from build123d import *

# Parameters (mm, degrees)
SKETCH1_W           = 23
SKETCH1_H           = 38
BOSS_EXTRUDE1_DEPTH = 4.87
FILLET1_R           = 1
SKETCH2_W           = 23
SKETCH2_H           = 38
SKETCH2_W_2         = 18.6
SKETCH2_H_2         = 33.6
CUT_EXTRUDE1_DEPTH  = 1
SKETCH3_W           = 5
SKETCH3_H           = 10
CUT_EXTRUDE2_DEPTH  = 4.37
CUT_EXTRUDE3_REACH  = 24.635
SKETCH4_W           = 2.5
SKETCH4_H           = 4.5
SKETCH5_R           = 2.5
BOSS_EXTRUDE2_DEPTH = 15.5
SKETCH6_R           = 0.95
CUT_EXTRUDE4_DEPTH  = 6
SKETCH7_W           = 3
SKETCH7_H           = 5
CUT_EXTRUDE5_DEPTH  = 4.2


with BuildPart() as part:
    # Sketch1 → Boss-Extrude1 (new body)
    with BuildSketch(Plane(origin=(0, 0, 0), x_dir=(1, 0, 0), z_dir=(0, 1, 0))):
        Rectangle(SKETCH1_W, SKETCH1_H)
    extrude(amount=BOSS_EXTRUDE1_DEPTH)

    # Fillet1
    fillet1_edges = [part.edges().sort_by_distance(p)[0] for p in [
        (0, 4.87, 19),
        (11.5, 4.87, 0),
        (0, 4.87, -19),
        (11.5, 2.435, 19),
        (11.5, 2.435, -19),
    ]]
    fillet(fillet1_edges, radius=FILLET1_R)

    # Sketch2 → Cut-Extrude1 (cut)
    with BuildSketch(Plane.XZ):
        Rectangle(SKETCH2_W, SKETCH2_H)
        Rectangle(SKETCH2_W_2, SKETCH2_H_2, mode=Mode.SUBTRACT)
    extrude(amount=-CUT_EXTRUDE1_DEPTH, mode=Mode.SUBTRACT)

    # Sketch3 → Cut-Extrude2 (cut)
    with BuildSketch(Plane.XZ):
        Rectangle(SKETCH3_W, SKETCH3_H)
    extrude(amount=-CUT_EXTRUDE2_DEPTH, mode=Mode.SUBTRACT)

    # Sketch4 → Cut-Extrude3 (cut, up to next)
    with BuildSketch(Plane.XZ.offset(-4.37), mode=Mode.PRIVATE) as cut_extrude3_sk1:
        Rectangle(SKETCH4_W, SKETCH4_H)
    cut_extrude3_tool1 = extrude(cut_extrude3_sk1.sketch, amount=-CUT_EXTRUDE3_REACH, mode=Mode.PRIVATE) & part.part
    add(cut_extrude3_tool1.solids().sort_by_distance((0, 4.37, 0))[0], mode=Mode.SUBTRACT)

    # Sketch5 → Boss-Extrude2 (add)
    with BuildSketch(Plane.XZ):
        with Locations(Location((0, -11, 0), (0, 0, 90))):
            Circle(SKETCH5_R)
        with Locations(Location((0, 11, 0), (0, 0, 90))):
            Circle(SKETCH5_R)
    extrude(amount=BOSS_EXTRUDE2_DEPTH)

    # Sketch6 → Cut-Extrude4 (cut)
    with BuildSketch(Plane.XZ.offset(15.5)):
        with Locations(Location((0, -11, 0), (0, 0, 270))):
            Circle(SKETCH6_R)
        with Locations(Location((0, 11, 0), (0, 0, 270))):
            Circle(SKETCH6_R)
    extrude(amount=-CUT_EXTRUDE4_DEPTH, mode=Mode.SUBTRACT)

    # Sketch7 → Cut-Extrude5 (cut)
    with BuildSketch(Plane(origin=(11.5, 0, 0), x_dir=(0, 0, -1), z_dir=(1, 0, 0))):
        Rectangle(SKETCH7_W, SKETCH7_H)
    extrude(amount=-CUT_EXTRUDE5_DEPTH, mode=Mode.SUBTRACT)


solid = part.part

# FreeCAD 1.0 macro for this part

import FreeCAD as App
import Part
import Sketcher


def edges_at(feature, points):
    """Names of the edges that pass closest to the given points."""
    edges = feature.Shape.Edges
    near = lambda p: min(range(len(edges)), key=lambda i: edges[i].distToShape(Part.Vertex(*p))[0])
    return sorted({f"Edge{near(p) + 1}" for p in points})

doc = App.newDocument("Part")
body = doc.addObject("PartDesign::Body", "Body")

sketch1 = body.newObject("Sketcher::SketchObject", "Sketch")
sketch1.AttachmentSupport = (doc.getObject("XZ_Plane"), [""])
sketch1.MapMode = "FlatFace"
sketch1.addGeometry([
    Part.LineSegment(App.Vector(-12, -19, 0), App.Vector(-12, 19, 0)),
    Part.LineSegment(App.Vector(-12, 19, 0), App.Vector(12, 19, 0)),
    Part.LineSegment(App.Vector(12, 19, 0), App.Vector(12, -19, 0)),
    Part.LineSegment(App.Vector(12, -19, 0), App.Vector(-12, -19, 0)),
], False)
sketch1.addConstraint([
    Sketcher.Constraint("Coincident", 0, 2, 1, 1),
    Sketcher.Constraint("Coincident", 1, 2, 2, 1),
    Sketcher.Constraint("Coincident", 2, 2, 3, 1),
    Sketcher.Constraint("Coincident", 3, 2, 0, 1),
    Sketcher.Constraint("Vertical", 0),
    Sketcher.Constraint("Horizontal", 1),
    Sketcher.Constraint("Vertical", 2),
    Sketcher.Constraint("Horizontal", 3),
    Sketcher.Constraint("Symmetric", 0, 2, 2, 2, -1, 1),
    Sketcher.Constraint("DistanceX", 1, 1, 1, 2, 23.0),
    Sketcher.Constraint("DistanceY", 0, 1, 0, 2, 38.0),
])
pad1 = body.newObject("PartDesign::Pad", "Pad")
pad1.Profile = sketch1
pad1.Length = 4.87
pad1.Reversed = True
doc.recompute()

fillet = body.newObject("PartDesign::Fillet", "Fillet")
fillet.Base = (pad1, edges_at(pad1, [
    (0, 4.87, 19),
    (11.5, 4.87, 0),
    (0, 4.87, -19),
    (11.5, 2.435, 19),
    (11.5, 2.435, -19),
]))
fillet.Radius = 1

sketch2 = body.newObject("Sketcher::SketchObject", "Sketch001")
sketch2.AttachmentSupport = (doc.getObject("XZ_Plane"), [""])
sketch2.MapMode = "FlatFace"
sketch2.addGeometry([
    Part.LineSegment(App.Vector(-12, 19, 0), App.Vector(-12, -19, 0)),
    Part.LineSegment(App.Vector(-12, -19, 0), App.Vector(12, -19, 0)),
    Part.LineSegment(App.Vector(12, -19, 0), App.Vector(12, 19, 0)),
    Part.LineSegment(App.Vector(12, 19, 0), App.Vector(-12, 19, 0)),
    Part.LineSegment(App.Vector(9, -17, 0), App.Vector(-9, -17, 0)),
    Part.LineSegment(App.Vector(-9, -17, 0), App.Vector(-9, 17, 0)),
    Part.LineSegment(App.Vector(-9, 17, 0), App.Vector(9, 17, 0)),
    Part.LineSegment(App.Vector(9, 17, 0), App.Vector(9, -17, 0)),
], False)
sketch2.addConstraint([
    Sketcher.Constraint("Coincident", 0, 2, 1, 1),
    Sketcher.Constraint("Coincident", 1, 2, 2, 1),
    Sketcher.Constraint("Coincident", 2, 2, 3, 1),
    Sketcher.Constraint("Coincident", 3, 2, 0, 1),
    Sketcher.Constraint("Coincident", 4, 2, 5, 1),
    Sketcher.Constraint("Coincident", 5, 2, 6, 1),
    Sketcher.Constraint("Coincident", 6, 2, 7, 1),
    Sketcher.Constraint("Coincident", 7, 2, 4, 1),
    Sketcher.Constraint("Vertical", 0),
    Sketcher.Constraint("Horizontal", 1),
    Sketcher.Constraint("Vertical", 2),
    Sketcher.Constraint("Horizontal", 3),
    Sketcher.Constraint("Horizontal", 4),
    Sketcher.Constraint("Vertical", 5),
    Sketcher.Constraint("Horizontal", 6),
    Sketcher.Constraint("Vertical", 7),
    Sketcher.Constraint("Symmetric", 0, 2, 2, 2, -1, 1),
    Sketcher.Constraint("Symmetric", 4, 2, 6, 2, -1, 1),
    Sketcher.Constraint("DistanceX", 1, 1, 1, 2, 23.0),
    Sketcher.Constraint("DistanceY", 0, 2, 0, 1, 38.0),
    Sketcher.Constraint("DistanceX", 4, 2, 4, 1, 18.6),
    Sketcher.Constraint("DistanceY", 5, 1, 5, 2, 33.6),
])
pocket1 = body.newObject("PartDesign::Pocket", "Pocket")
pocket1.Profile = sketch2
pocket1.Length = 1

sketch3 = body.newObject("Sketcher::SketchObject", "Sketch002")
sketch3.AttachmentSupport = (doc.getObject("XZ_Plane"), [""])
sketch3.MapMode = "FlatFace"
sketch3.addGeometry([
    Part.LineSegment(App.Vector(-2, 5, 0), App.Vector(-2, -5, 0)),
    Part.LineSegment(App.Vector(-2, -5, 0), App.Vector(2, -5, 0)),
    Part.LineSegment(App.Vector(2, -5, 0), App.Vector(2, 5, 0)),
    Part.LineSegment(App.Vector(2, 5, 0), App.Vector(-2, 5, 0)),
], False)
sketch3.addConstraint([
    Sketcher.Constraint("Coincident", 0, 2, 1, 1),
    Sketcher.Constraint("Coincident", 1, 2, 2, 1),
    Sketcher.Constraint("Coincident", 2, 2, 3, 1),
    Sketcher.Constraint("Coincident", 3, 2, 0, 1),
    Sketcher.Constraint("Vertical", 0),
    Sketcher.Constraint("Horizontal", 1),
    Sketcher.Constraint("Vertical", 2),
    Sketcher.Constraint("Horizontal", 3),
    Sketcher.Constraint("Symmetric", 0, 2, 2, 2, -1, 1),
    Sketcher.Constraint("DistanceX", 1, 1, 1, 2, 5.0),
    Sketcher.Constraint("DistanceY", 0, 2, 0, 1, 10.0),
])
pocket2 = body.newObject("PartDesign::Pocket", "Pocket001")
pocket2.Profile = sketch3
pocket2.Length = 4.37

sketch4 = body.newObject("Sketcher::SketchObject", "Sketch003")
sketch4.AttachmentSupport = (doc.getObject("XZ_Plane"), [""])
sketch4.MapMode = "FlatFace"
sketch4.AttachmentOffset = App.Placement(App.Vector(0, 0, -4.37), App.Rotation())
sketch4.addGeometry([
    Part.LineSegment(App.Vector(-1.2, 2.2, 0), App.Vector(-1.2, -2.2, 0)),
    Part.LineSegment(App.Vector(-1.2, -2.2, 0), App.Vector(1.2, -2.2, 0)),
    Part.LineSegment(App.Vector(1.2, -2.2, 0), App.Vector(1.2, 2.2, 0)),
    Part.LineSegment(App.Vector(1.2, 2.2, 0), App.Vector(-1.2, 2.2, 0)),
], False)
sketch4.addConstraint([
    Sketcher.Constraint("Coincident", 0, 2, 1, 1),
    Sketcher.Constraint("Coincident", 1, 2, 2, 1),
    Sketcher.Constraint("Coincident", 2, 2, 3, 1),
    Sketcher.Constraint("Coincident", 3, 2, 0, 1),
    Sketcher.Constraint("Vertical", 0),
    Sketcher.Constraint("Horizontal", 1),
    Sketcher.Constraint("Vertical", 2),
    Sketcher.Constraint("Horizontal", 3),
    Sketcher.Constraint("Symmetric", 0, 2, 2, 2, -1, 1),
    Sketcher.Constraint("DistanceX", 1, 1, 1, 2, 2.5),
    Sketcher.Constraint("DistanceY", 0, 2, 0, 1, 4.5),
])
pocket3 = body.newObject("PartDesign::Pocket", "Pocket002")
pocket3.Profile = sketch4
pocket3.Type = "UpToFirst"

sketch5 = body.newObject("Sketcher::SketchObject", "Sketch004")
sketch5.AttachmentSupport = (doc.getObject("XZ_Plane"), [""])
sketch5.MapMode = "FlatFace"
sketch5.addGeometry([
    Part.Circle(App.Vector(0, -11, 0), App.Vector(0, 0, 1), 2.5),
    Part.Circle(App.Vector(0, 11, 0), App.Vector(0, 0, 1), 2.5),
], False)
sketch5.addConstraint([
    Sketcher.Constraint("Equal", 0, 1),
    Sketcher.Constraint("Symmetric", 0, 3, 1, 3, -1, 1),
    Sketcher.Constraint("PointOnObject", 0, 3, -2),
    Sketcher.Constraint("Diameter", 0, 5.0),
    Sketcher.Constraint("DistanceY", 0, 3, -1, 1, 11.0),
])
pad2 = body.newObject("PartDesign::Pad", "Pad001")
pad2.Profile = sketch5
pad2.Length = 15.5

sketch6 = body.newObject("Sketcher::SketchObject", "Sketch005")
sketch6.AttachmentSupport = (doc.getObject("XZ_Plane"), [""])
sketch6.MapMode = "FlatFace"
sketch6.AttachmentOffset = App.Placement(App.Vector(0, 0, 15.5), App.Rotation())
sketch6.addGeometry([
    Part.Circle(App.Vector(0, -11, 0), App.Vector(0, 0, 1), 0.9),
    Part.Circle(App.Vector(0, 11, 0), App.Vector(0, 0, 1), 0.9),
], False)
sketch6.addConstraint([
    Sketcher.Constraint("Equal", 0, 1),
    Sketcher.Constraint("Symmetric", 0, 3, 1, 3, -1, 1),
    Sketcher.Constraint("PointOnObject", 0, 3, -2),
    Sketcher.Constraint("Diameter", 0, 1.9),
    Sketcher.Constraint("DistanceY", 0, 3, -1, 1, 11.0),
])
pocket4 = body.newObject("PartDesign::Pocket", "Pocket003")
pocket4.Profile = sketch6
pocket4.Length = 6

sketch7 = body.newObject("Sketcher::SketchObject", "Sketch006")
sketch7.AttachmentSupport = (doc.getObject("YZ_Plane"), [""])
sketch7.MapMode = "FlatFace"
sketch7.AttachmentOffset = App.Placement(App.Vector(0, 0, 11.5), App.Rotation())
sketch7.addGeometry([
    Part.LineSegment(App.Vector(2.5, 1.5, 0), App.Vector(-2.5, 1.5, 0)),
    Part.LineSegment(App.Vector(-2.5, 1.5, 0), App.Vector(-2.5, -1.5, 0)),
    Part.LineSegment(App.Vector(-2.5, -1.5, 0), App.Vector(2.5, -1.5, 0)),
    Part.LineSegment(App.Vector(2.5, -1.5, 0), App.Vector(2.5, 1.5, 0)),
], False)
sketch7.addConstraint([
    Sketcher.Constraint("Coincident", 0, 2, 1, 1),
    Sketcher.Constraint("Coincident", 1, 2, 2, 1),
    Sketcher.Constraint("Coincident", 2, 2, 3, 1),
    Sketcher.Constraint("Coincident", 3, 2, 0, 1),
    Sketcher.Constraint("Horizontal", 0),
    Sketcher.Constraint("Vertical", 1),
    Sketcher.Constraint("Horizontal", 2),
    Sketcher.Constraint("Vertical", 3),
    Sketcher.Constraint("Symmetric", 0, 2, 2, 2, -1, 1),
    Sketcher.Constraint("DistanceX", 0, 2, 0, 1, 5.0),
    Sketcher.Constraint("DistanceY", 1, 2, 1, 1, 3.0),
])
pocket5 = body.newObject("PartDesign::Pocket", "Pocket004")
pocket5.Profile = sketch7
pocket5.Length = 4.2

doc.recompute()
